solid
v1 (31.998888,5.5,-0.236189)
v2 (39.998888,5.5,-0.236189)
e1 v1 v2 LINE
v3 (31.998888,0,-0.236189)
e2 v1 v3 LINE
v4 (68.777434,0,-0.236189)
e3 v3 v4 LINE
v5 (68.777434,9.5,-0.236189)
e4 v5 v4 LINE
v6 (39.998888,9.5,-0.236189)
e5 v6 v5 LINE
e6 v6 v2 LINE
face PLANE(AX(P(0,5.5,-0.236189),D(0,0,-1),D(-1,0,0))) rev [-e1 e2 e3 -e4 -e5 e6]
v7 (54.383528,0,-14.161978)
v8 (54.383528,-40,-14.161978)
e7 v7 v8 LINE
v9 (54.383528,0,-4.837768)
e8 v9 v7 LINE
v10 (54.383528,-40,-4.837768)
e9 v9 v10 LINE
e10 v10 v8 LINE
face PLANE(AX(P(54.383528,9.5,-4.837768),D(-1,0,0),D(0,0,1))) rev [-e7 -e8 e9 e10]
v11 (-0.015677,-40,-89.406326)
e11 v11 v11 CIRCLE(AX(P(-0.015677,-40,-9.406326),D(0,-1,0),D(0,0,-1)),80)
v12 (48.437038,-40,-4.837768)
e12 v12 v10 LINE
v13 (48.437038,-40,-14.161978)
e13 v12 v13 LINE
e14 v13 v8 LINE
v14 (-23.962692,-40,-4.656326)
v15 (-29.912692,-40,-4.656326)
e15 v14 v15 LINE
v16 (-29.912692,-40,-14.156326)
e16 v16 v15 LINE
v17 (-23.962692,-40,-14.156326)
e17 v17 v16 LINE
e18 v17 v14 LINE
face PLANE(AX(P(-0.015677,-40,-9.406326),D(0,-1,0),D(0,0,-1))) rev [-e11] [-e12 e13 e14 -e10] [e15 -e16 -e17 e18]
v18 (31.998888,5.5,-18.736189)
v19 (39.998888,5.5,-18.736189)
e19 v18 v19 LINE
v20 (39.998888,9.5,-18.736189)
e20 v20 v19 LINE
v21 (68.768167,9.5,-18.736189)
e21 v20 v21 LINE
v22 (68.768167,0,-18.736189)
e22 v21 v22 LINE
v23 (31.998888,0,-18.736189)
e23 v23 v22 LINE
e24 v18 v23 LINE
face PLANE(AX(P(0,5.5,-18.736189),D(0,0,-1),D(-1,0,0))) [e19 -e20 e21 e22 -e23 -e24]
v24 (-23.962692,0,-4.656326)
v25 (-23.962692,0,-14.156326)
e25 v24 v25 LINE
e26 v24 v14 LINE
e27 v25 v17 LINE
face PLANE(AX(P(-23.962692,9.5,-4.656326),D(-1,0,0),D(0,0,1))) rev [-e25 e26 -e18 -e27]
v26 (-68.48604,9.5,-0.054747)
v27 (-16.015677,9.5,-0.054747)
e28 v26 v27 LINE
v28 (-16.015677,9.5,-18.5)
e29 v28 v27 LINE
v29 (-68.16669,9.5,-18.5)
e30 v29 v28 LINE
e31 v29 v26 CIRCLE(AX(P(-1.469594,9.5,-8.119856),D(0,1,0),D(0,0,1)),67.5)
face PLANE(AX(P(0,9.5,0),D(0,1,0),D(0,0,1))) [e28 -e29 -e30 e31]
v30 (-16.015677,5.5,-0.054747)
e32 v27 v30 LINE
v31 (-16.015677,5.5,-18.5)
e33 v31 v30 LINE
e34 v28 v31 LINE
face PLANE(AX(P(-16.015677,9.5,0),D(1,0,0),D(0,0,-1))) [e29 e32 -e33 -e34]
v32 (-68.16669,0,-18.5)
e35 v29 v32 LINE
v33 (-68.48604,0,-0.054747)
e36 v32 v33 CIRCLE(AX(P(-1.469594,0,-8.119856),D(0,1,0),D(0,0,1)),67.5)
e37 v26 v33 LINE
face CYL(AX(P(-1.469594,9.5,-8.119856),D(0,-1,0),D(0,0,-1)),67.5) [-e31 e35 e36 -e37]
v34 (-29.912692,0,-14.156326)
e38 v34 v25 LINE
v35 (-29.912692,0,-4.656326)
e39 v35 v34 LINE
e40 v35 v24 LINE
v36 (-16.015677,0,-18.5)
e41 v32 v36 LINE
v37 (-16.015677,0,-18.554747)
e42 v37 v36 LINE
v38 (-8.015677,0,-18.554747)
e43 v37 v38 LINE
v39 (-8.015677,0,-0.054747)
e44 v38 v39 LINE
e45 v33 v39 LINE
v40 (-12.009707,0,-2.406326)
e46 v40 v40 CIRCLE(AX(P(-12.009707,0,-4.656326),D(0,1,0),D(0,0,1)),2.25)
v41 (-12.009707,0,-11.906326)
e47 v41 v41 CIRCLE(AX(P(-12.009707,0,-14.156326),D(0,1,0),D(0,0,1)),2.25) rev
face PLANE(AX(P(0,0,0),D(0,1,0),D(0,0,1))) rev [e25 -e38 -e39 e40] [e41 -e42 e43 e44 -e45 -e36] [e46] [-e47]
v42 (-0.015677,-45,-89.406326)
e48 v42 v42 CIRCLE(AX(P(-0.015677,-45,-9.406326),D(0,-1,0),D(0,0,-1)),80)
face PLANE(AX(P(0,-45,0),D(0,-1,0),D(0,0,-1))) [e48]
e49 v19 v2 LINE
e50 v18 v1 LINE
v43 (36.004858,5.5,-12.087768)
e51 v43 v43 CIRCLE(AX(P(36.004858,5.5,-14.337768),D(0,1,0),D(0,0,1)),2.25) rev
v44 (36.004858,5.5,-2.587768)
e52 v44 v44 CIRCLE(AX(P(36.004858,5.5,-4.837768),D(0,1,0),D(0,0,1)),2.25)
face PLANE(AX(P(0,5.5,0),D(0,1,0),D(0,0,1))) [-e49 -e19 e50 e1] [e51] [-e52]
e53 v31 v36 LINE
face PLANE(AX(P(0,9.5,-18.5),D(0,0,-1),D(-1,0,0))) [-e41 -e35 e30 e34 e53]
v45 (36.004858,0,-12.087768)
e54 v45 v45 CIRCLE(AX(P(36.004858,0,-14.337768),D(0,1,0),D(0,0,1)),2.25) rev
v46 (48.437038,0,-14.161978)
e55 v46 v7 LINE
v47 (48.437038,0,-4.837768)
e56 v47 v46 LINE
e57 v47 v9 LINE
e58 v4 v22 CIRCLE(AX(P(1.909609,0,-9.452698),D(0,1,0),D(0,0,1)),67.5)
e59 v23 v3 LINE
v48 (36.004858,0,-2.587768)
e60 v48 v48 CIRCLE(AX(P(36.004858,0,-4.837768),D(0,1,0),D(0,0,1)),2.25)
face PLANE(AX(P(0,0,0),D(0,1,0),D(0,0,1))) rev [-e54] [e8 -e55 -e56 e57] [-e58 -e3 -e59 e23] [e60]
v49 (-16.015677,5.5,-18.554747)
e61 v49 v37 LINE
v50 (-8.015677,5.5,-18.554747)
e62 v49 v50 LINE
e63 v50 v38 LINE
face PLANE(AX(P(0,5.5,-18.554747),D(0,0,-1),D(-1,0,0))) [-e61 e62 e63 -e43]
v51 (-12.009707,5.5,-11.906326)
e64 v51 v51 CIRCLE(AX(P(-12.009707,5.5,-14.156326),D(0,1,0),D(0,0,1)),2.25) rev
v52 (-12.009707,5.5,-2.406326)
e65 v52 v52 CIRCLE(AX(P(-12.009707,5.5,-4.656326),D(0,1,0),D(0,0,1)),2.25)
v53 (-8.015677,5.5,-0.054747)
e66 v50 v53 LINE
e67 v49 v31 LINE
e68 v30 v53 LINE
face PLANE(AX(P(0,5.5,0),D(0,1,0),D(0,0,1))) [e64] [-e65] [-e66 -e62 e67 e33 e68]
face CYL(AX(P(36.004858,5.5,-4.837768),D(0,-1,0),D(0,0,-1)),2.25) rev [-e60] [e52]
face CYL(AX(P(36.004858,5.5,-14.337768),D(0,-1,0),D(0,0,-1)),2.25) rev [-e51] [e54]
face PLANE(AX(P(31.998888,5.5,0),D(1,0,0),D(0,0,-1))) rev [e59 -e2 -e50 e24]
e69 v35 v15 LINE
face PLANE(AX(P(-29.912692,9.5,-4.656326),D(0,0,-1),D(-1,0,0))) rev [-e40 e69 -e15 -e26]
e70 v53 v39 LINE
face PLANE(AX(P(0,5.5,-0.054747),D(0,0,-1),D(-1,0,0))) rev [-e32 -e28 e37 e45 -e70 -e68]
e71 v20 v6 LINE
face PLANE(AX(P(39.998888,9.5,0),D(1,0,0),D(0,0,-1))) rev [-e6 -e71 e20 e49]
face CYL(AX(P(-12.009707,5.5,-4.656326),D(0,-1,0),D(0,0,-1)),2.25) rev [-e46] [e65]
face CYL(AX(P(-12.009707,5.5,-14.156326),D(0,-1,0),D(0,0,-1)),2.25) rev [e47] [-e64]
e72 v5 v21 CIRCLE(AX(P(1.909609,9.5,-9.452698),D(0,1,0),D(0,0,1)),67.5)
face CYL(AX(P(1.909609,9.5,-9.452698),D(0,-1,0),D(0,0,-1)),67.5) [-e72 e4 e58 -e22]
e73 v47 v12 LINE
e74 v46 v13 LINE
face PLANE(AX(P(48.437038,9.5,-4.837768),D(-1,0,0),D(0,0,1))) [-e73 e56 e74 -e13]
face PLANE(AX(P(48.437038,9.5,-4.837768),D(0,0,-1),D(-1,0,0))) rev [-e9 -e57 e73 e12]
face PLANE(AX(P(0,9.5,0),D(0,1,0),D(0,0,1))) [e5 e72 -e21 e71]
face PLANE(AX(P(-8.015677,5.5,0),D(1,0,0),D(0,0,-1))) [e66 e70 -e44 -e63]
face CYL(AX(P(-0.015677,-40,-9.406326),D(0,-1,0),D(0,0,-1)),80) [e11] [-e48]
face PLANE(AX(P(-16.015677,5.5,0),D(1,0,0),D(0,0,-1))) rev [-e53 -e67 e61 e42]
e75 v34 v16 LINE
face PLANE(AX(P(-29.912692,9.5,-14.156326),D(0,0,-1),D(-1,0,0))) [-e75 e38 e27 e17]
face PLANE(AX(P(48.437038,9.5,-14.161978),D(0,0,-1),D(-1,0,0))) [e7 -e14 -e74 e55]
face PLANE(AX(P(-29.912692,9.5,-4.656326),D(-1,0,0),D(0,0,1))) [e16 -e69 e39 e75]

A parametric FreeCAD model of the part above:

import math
import FreeCAD as App
import Part
import Sketcher

V = App.Vector
Q = App.Units.Quantity

doc = App.newDocument("Part")
params = doc.addObject("Spreadsheet::Sheet", "Params")
for row, (alias, value) in enumerate([
    ("sketch1_diameter", "4.5 mm"),
    ("sketch1_width", "8 mm"),
    ("sketch1_height", "18.5 mm"),
    ("pad1_length", "5.5 mm"),
    ("sketch2_radius", "67.5 mm"),
    ("sketch2_height", "9.5 mm"),
    ("sketch2_width", "5.95 mm"),
    ("pad2_length", "9.5 mm"),
    ("sketch3_diameter", "4.5 mm"),
    ("sketch3_width", "8 mm"),
    ("sketch3_height", "18.5 mm"),
    ("pad3_length", "5.5 mm"),
    ("sketch4_radius", "67.5 mm"),
    ("sketch4_height", "18.5 mm"),
    ("pad4_length", "9.5 mm"),
    ("sketch5_height", "9.5 mm"),
    ("sketch5_width", "5.95 mm"),
    ("pad5_length", "9.5 mm"),
    ("pad5_length2", "45 mm"),
    ("sketch6_diameter", "160 mm"),
    ("pad6_length", "5 mm"),
], start=1):
    params.set(f"A{row}", alias)
    params.set(f"B{row}", "=" + value)
    params.setAlias(f"B{row}", alias)

body = doc.addObject("PartDesign::Body", "Body")

# Sketch on XZ plane
sketch1 = body.newObject("Sketcher::SketchObject", "Sketch")
sketch1.AttachmentSupport = (doc.getObject("XZ_Plane"), [""])
sketch1.MapMode = "FlatFace"
sketch1.addGeometry(Part.LineSegment(V(-16, -18.6, 0), V(-16, -0.1, 0)), False)
sketch1.addGeometry(Part.LineSegment(V(-16, -0.1, 0), V(-8, -0.1, 0)), False)
sketch1.addGeometry(Part.LineSegment(V(-8, -0.1, 0), V(-8, -18.6, 0)), False)
sketch1.addGeometry(Part.LineSegment(V(-8, -18.6, 0), V(-16, -18.6, 0)), False)
sketch1.addGeometry(Part.Circle(V(-12, -4.7, 0), V(0, 0, 1), 2.2), False)
sketch1.addGeometry(Part.Circle(V(-12, -14.2, 0), V(0, 0, 1), 2.2), False)
sketch1.addConstraint(Sketcher.Constraint("Coincident", 0, 2, 1, 1))
sketch1.addConstraint(Sketcher.Constraint("Coincident", 1, 2, 2, 1))
sketch1.addConstraint(Sketcher.Constraint("Coincident", 2, 2, 3, 1))
sketch1.addConstraint(Sketcher.Constraint("Coincident", 3, 2, 0, 1))
sketch1.addConstraint(Sketcher.Constraint("Vertical", 0))
sketch1.addConstraint(Sketcher.Constraint("Horizontal", 1))
sketch1.addConstraint(Sketcher.Constraint("Vertical", 2))
sketch1.addConstraint(Sketcher.Constraint("Horizontal", 3))
sketch1.addConstraint(Sketcher.Constraint("Equal", 4, 5))
sketch1.addConstraint(Sketcher.Constraint("Vertical", 4, 3, 5, 3))
sketch1.addConstraint(Sketcher.Constraint("Diameter", 4, Q("4.5 mm")))
sketch1.addConstraint(Sketcher.Constraint("DistanceX", 1, 1, 1, 2, Q("8 mm")))
sketch1.addConstraint(Sketcher.Constraint("DistanceY", 0, 1, 0, 2, Q("18.5 mm")))
sketch1.addConstraint(Sketcher.Constraint("DistanceY", 5, 3, 4, 3, Q("9.5 mm")))
sketch1.addConstraint(Sketcher.Constraint("DistanceX", 0, 2, 4, 3, Q("4.00597 mm")))
sketch1.addConstraint(Sketcher.Constraint("DistanceY", 4, 3, 0, 2, Q("4.601579 mm")))
sketch1.addConstraint(Sketcher.Constraint("DistanceX", 4, 3, -1, 1, Q("12.009707 mm")))
sketch1.addConstraint(Sketcher.Constraint("DistanceY", 4, 3, -1, 1, Q("4.656326 mm")))
sketch1.setExpression("Constraints[10]", "Params.sketch1_diameter")
sketch1.setExpression("Constraints[11]", "Params.sketch1_width")
sketch1.setExpression("Constraints[12]", "Params.sketch1_height")
pad1 = body.newObject("PartDesign::Pad", "Pad")
pad1.Profile = sketch1
pad1.setExpression("Length", "Params.pad1_length")
pad1.Reversed = True

# Sketch on XZ plane
sketch2 = body.newObject("Sketcher::SketchObject", "Sketch001")
sketch2.AttachmentSupport = (doc.getObject("XZ_Plane"), [""])
sketch2.MapMode = "FlatFace"
sketch2.addGeometry(Part.LineSegment(V(-16, 0, 0), V(-16, -18, 0)), False)
sketch2.addGeometry(Part.LineSegment(V(-16, -18, 0), V(-68, -18, 0)), False)
sketch2.addGeometry(Part.ArcOfCircle(Part.Circle(V(-1, -8, 0), V(0, 0, 1), 67), math.radians(173.14), math.radians(188.85)), False)
sketch2.addGeometry(Part.LineSegment(V(-68, 0, 0), V(-16, 0, 0)), False)
sketch2.addGeometry(Part.LineSegment(V(-24, -5, 0), V(-30, -5, 0)), False)
sketch2.addGeometry(Part.LineSegment(V(-30, -5, 0), V(-30, -14, 0)), False)
sketch2.addGeometry(Part.LineSegment(V(-30, -14, 0), V(-24, -14, 0)), False)
sketch2.addGeometry(Part.LineSegment(V(-24, -14, 0), V(-24, -5, 0)), False)
sketch2.addConstraint(Sketcher.Constraint("Coincident", 0, 2, 1, 1))
sketch2.addConstraint(Sketcher.Constraint("Coincident", 1, 2, 2, 2))
sketch2.addConstraint(Sketcher.Constraint("Coincident", 2, 1, 3, 1))
sketch2.addConstraint(Sketcher.Constraint("Coincident", 3, 2, 0, 1))
sketch2.addConstraint(Sketcher.Constraint("Coincident", 4, 2, 5, 1))
sketch2.addConstraint(Sketcher.Constraint("Coincident", 5, 2, 6, 1))
sketch2.addConstraint(Sketcher.Constraint("Coincident", 6, 2, 7, 1))
sketch2.addConstraint(Sketcher.Constraint("Coincident", 7, 2, 4, 1))
sketch2.addConstraint(Sketcher.Constraint("Vertical", 0))
sketch2.addConstraint(Sketcher.Constraint("Horizontal", 1))
sketch2.addConstraint(Sketcher.Constraint("Horizontal", 3))
sketch2.addConstraint(Sketcher.Constraint("Horizontal", 4))
sketch2.addConstraint(Sketcher.Constraint("Vertical", 5))
sketch2.addConstraint(Sketcher.Constraint("Horizontal", 6))
sketch2.addConstraint(Sketcher.Constraint("Vertical", 7))
sketch2.addConstraint(Sketcher.Constraint("Radius", 2, Q("67.5 mm")))
sketch2.addConstraint(Sketcher.Constraint("DistanceY", 5, 2, 5, 1, Q("9.5 mm")))
sketch2.addConstraint(Sketcher.Constraint("DistanceX", 4, 2, 4, 1, Q("5.95 mm")))
sketch2.addConstraint(Sketcher.Constraint("DistanceY", 0, 2, -1, 1, Q("18.5 mm")))
sketch2.addConstraint(Sketcher.Constraint("DistanceX", 4, 2, 2, 3, Q("28.443098 mm")))
sketch2.addConstraint(Sketcher.Constraint("DistanceX", 1, 2, 1, 1, Q("52.151013 mm")))
sketch2.addConstraint(Sketcher.Constraint("DistanceX", 3, 1, 3, 2, Q("52.470363 mm")))
sketch2.addConstraint(Sketcher.Constraint("DistanceY", 0, 2, 0, 1, Q("18.445253 mm")))
sketch2.addConstraint(Sketcher.Constraint("DistanceX", 1, 2, -1, 1, Q("68.16669 mm")))
sketch2.addConstraint(Sketcher.Constraint("DistanceY", 4, 2, 3, 2, Q("4.601579 mm")))
sketch2.setExpression("Constraints[15]", "Params.sketch2_radius")
sketch2.setExpression("Constraints[16]", "Params.sketch2_height")
sketch2.setExpression("Constraints[17]", "Params.sketch2_width")
pad2 = body.newObject("PartDesign::Pad", "Pad001")
pad2.Profile = sketch2
pad2.setExpression("Length", "Params.pad2_length")
pad2.Reversed = True
body2 = doc.addObject("PartDesign::Body", "Body001")

# Sketch on XZ plane
sketch3 = body2.newObject("Sketcher::SketchObject", "Sketch002")
sketch3.AttachmentSupport = (doc.getObject("XZ_Plane001"), [""])
sketch3.MapMode = "FlatFace"
sketch3.addGeometry(Part.LineSegment(V(32, -18.7, 0), V(32, -0.2, 0)), False)
sketch3.addGeometry(Part.LineSegment(V(32, -0.2, 0), V(40, -0.2, 0)), False)
sketch3.addGeometry(Part.LineSegment(V(40, -0.2, 0), V(40, -18.7, 0)), False)
sketch3.addGeometry(Part.LineSegment(V(40, -18.7, 0), V(32, -18.7, 0)), False)
sketch3.addGeometry(Part.Circle(V(36, -4.8, 0), V(0, 0, 1), 2.2), False)
sketch3.addGeometry(Part.Circle(V(36, -14.3, 0), V(0, 0, 1), 2.2), False)
sketch3.addConstraint(Sketcher.Constraint("Coincident", 0, 2, 1, 1))
sketch3.addConstraint(Sketcher.Constraint("Coincident", 1, 2, 2, 1))
sketch3.addConstraint(Sketcher.Constraint("Coincident", 2, 2, 3, 1))
sketch3.addConstraint(Sketcher.Constraint("Coincident", 3, 2, 0, 1))
sketch3.addConstraint(Sketcher.Constraint("Vertical", 0))
sketch3.addConstraint(Sketcher.Constraint("Horizontal", 1))
sketch3.addConstraint(Sketcher.Constraint("Vertical", 2))
sketch3.addConstraint(Sketcher.Constraint("Horizontal", 3))
sketch3.addConstraint(Sketcher.Constraint("Equal", 4, 5))
sketch3.addConstraint(Sketcher.Constraint("Vertical", 4, 3, 5, 3))
sketch3.addConstraint(Sketcher.Constraint("Diameter", 4, Q("4.5 mm")))
sketch3.addConstraint(Sketcher.Constraint("DistanceX", 1, 1, 1, 2, Q("8 mm")))
sketch3.addConstraint(Sketcher.Constraint("DistanceY", 0, 1, 0, 2, Q("18.5 mm")))
sketch3.addConstraint(Sketcher.Constraint("DistanceY", 5, 3, 4, 3, Q("9.5 mm")))
sketch3.addConstraint(Sketcher.Constraint("DistanceX", -1, 1, 0, 2, Q("31.998888 mm")))
sketch3.addConstraint(Sketcher.Constraint("DistanceY", 0, 2, -1, 1, Q("0.236189 mm")))
sketch3.addConstraint(Sketcher.Constraint("DistanceX", 0, 2, 4, 3, Q("4.00597 mm")))
sketch3.addConstraint(Sketcher.Constraint("DistanceY", 4, 3, 0, 2, Q("4.601579 mm")))
sketch3.setExpression("Constraints[10]", "Params.sketch3_diameter")
sketch3.setExpression("Constraints[11]", "Params.sketch3_width")
sketch3.setExpression("Constraints[12]", "Params.sketch3_height")
pad3 = body2.newObject("PartDesign::Pad", "Pad002")
pad3.Profile = sketch3
pad3.setExpression("Length", "Params.pad3_length")
pad3.Reversed = True

# Sketch on XZ plane
sketch4 = body2.newObject("Sketcher::SketchObject", "Sketch003")
sketch4.AttachmentSupport = (doc.getObject("XZ_Plane001"), [""])
sketch4.MapMode = "FlatFace"
sketch4.addGeometry(Part.LineSegment(V(69, -19, 0), V(40, -19, 0)), False)
sketch4.addGeometry(Part.LineSegment(V(40, -19, 0), V(40, 0, 0)), False)
sketch4.addGeometry(Part.LineSegment(V(40, 0, 0), V(69, 0, 0)), False)
sketch4.addGeometry(Part.ArcOfCircle(Part.Circle(V(2, -9, 0), V(0, 0, 1), 68), math.radians(-7.91), math.radians(7.85)), False)
sketch4.addGeometry(Part.LineSegment(V(48, -5, 0), V(48, -14, 0)), False)
sketch4.addGeometry(Part.LineSegment(V(48, -14, 0), V(54, -14, 0)), False)
sketch4.addGeometry(Part.LineSegment(V(54, -14, 0), V(54, -5, 0)), False)
sketch4.addGeometry(Part.LineSegment(V(54, -5, 0), V(48, -5, 0)), False)
sketch4.addConstraint(Sketcher.Constraint("Coincident", 0, 2, 1, 1))
sketch4.addConstraint(Sketcher.Constraint("Coincident", 1, 2, 2, 1))
sketch4.addConstraint(Sketcher.Constraint("Coincident", 2, 2, 3, 2))
sketch4.addConstraint(Sketcher.Constraint("Coincident", 3, 1, 0, 1))
sketch4.addConstraint(Sketcher.Constraint("Coincident", 4, 2, 5, 1))
sketch4.addConstraint(Sketcher.Constraint("Coincident", 5, 2, 6, 1))
sketch4.addConstraint(Sketcher.Constraint("Coincident", 6, 2, 7, 1))
sketch4.addConstraint(Sketcher.Constraint("Coincident", 7, 2, 4, 1))
sketch4.addConstraint(Sketcher.Constraint("Horizontal", 0))
sketch4.addConstraint(Sketcher.Constraint("Vertical", 1))
sketch4.addConstraint(Sketcher.Constraint("Horizontal", 2))
sketch4.addConstraint(Sketcher.Constraint("Vertical", 4))
sketch4.addConstraint(Sketcher.Constraint("Horizontal", 5))
sketch4.addConstraint(Sketcher.Constraint("Vertical", 6))
sketch4.addConstraint(Sketcher.Constraint("Horizontal", 7))
sketch4.addConstraint(Sketcher.Constraint("Radius", 3, Q("67.5 mm")))
sketch4.addConstraint(Sketcher.Constraint("DistanceY", 1, 1, 1, 2, Q("18.5 mm")))
sketch4.addConstraint(Sketcher.Constraint("DistanceX", 0, 2, 0, 1, Q("28.769279 mm")))
sketch4.addConstraint(Sketcher.Constraint("DistanceX", 5, 1, 5, 2, Q("5.946489 mm")))
sketch4.addConstraint(Sketcher.Constraint("DistanceY", 4, 2, 4, 1, Q("9.324211 mm")))
sketch4.addConstraint(Sketcher.Constraint("DistanceY", 3, 3, -1, 1, Q("9.452698 mm")))
sketch4.addConstraint(Sketcher.Constraint("DistanceX", 2, 1, 2, 2, Q("28.778546 mm")))
sketch4.addConstraint(Sketcher.Constraint("DistanceX", -1, 1, 3, 3, Q("1.909609 mm")))
sketch4.addConstraint(Sketcher.Constraint("DistanceX", -1, 1, 4, 2, Q("48.437038 mm")))
sketch4.addConstraint(Sketcher.Constraint("DistanceY", 4, 2, -1, 1, Q("14.161979 mm")))
sketch4.setExpression("Constraints[15]", "Params.sketch4_radius")
sketch4.setExpression("Constraints[16]", "Params.sketch4_height")
pad4 = body2.newObject("PartDesign::Pad", "Pad003")
pad4.Profile = sketch4
pad4.setExpression("Length", "Params.pad4_length")
pad4.Reversed = True
body.AllowCompound = True
doc.recompute()

boolean = body.newObject("PartDesign::Boolean", "Boolean")
boolean.Type = "Fuse"
boolean.addObjects([body2])

# Sketch on XZ plane
sketch5 = body.newObject("Sketcher::SketchObject", "Sketch004")
sketch5.AttachmentSupport = (doc.getObject("XZ_Plane"), [""])
sketch5.MapMode = "FlatFace"
sketch5.addGeometry(Part.LineSegment(V(-30, -14, 0), V(-30, -5, 0)), False)
sketch5.addGeometry(Part.LineSegment(V(-30, -5, 0), V(-24, -5, 0)), False)
sketch5.addGeometry(Part.LineSegment(V(-24, -5, 0), V(-24, -14, 0)), False)
sketch5.addGeometry(Part.LineSegment(V(-24, -14, 0), V(-30, -14, 0)), False)
sketch5.addGeometry(Part.LineSegment(V(48, -14, 0), V(48, -5, 0)), False)
sketch5.addGeometry(Part.LineSegment(V(48, -5, 0), V(54, -5, 0)), False)
sketch5.addGeometry(Part.LineSegment(V(54, -5, 0), V(54, -14, 0)), False)
sketch5.addGeometry(Part.LineSegment(V(54, -14, 0), V(48, -14, 0)), False)
sketch5.addConstraint(Sketcher.Constraint("Coincident", 0, 2, 1, 1))
sketch5.addConstraint(Sketcher.Constraint("Coincident", 1, 2, 2, 1))
sketch5.addConstraint(Sketcher.Constraint("Coincident", 2, 2, 3, 1))
sketch5.addConstraint(Sketcher.Constraint("Coincident", 3, 2, 0, 1))
sketch5.addConstraint(Sketcher.Constraint("Coincident", 4, 2, 5, 1))
sketch5.addConstraint(Sketcher.Constraint("Coincident", 5, 2, 6, 1))
sketch5.addConstraint(Sketcher.Constraint("Coincident", 6, 2, 7, 1))
sketch5.addConstraint(Sketcher.Constraint("Coincident", 7, 2, 4, 1))
sketch5.addConstraint(Sketcher.Constraint("Vertical", 0))
sketch5.addConstraint(Sketcher.Constraint("Horizontal", 1))
sketch5.addConstraint(Sketcher.Constraint("Vertical", 2))
sketch5.addConstraint(Sketcher.Constraint("Horizontal", 3))
sketch5.addConstraint(Sketcher.Constraint("Vertical", 4))
sketch5.addConstraint(Sketcher.Constraint("Horizontal", 5))
sketch5.addConstraint(Sketcher.Constraint("Vertical", 6))
sketch5.addConstraint(Sketcher.Constraint("Horizontal", 7))
sketch5.addConstraint(Sketcher.Constraint("DistanceY", 0, 1, 0, 2, Q("9.5 mm")))
sketch5.addConstraint(Sketcher.Constraint("DistanceX", 1, 1, 1, 2, Q("5.95 mm")))
sketch5.addConstraint(Sketcher.Constraint("DistanceX", 5, 1, 5, 2, Q("5.946489 mm")))
sketch5.addConstraint(Sketcher.Constraint("DistanceY", 4, 1, 4, 2, Q("9.324211 mm")))
sketch5.addConstraint(Sketcher.Constraint("DistanceX", -1, 1, 4, 2, Q("48.437038 mm")))
sketch5.addConstraint(Sketcher.Constraint("DistanceY", 6, 2, -1, 1, Q("14.161979 mm")))
sketch5.addConstraint(Sketcher.Constraint("DistanceX", 1, 2, 4, 2, Q("72.399731 mm")))
sketch5.addConstraint(Sketcher.Constraint("DistanceY", 4, 2, 1, 2, Q("0.181442 mm")))
sketch5.setExpression("Constraints[16]", "Params.sketch5_height")
sketch5.setExpression("Constraints[17]", "Params.sketch5_width")
pad5 = body.newObject("PartDesign::Pad", "Pad004")
pad5.Profile = sketch5
pad5.Type = "TwoLengths"
pad5.setExpression("Length", "Params.pad5_length")
pad5.setExpression("Length2", "Params.pad5_length2")
pad5.Reversed = True

# Sketch on XZ plane
sketch6 = body.newObject("Sketcher::SketchObject", "Sketch005")
sketch6.AttachmentSupport = (doc.getObject("XZ_Plane"), [""])
sketch6.MapMode = "FlatFace"
sketch6.AttachmentOffset = App.Placement(V(0, 0, 45), App.Rotation())
sketch6.addGeometry(Part.Circle(V(0, -9, 0), V(0, 0, 1), 80), False)
sketch6.addConstraint(Sketcher.Constraint("Diameter", 0, Q("160 mm")))
sketch6.addConstraint(Sketcher.Constraint("DistanceX", 0, 3, -1, 1, Q("0.015677 mm")))
sketch6.addConstraint(Sketcher.Constraint("DistanceY", 0, 3, -1, 1, Q("9.406326 mm")))
sketch6.setExpression("Constraints[0]", "Params.sketch6_diameter")
pad6 = body.newObject("PartDesign::Pad", "Pad005")
pad6.Profile = sketch6
pad6.setExpression("Length", "Params.pad6_length")
pad6.Reversed = True

doc.recompute()
